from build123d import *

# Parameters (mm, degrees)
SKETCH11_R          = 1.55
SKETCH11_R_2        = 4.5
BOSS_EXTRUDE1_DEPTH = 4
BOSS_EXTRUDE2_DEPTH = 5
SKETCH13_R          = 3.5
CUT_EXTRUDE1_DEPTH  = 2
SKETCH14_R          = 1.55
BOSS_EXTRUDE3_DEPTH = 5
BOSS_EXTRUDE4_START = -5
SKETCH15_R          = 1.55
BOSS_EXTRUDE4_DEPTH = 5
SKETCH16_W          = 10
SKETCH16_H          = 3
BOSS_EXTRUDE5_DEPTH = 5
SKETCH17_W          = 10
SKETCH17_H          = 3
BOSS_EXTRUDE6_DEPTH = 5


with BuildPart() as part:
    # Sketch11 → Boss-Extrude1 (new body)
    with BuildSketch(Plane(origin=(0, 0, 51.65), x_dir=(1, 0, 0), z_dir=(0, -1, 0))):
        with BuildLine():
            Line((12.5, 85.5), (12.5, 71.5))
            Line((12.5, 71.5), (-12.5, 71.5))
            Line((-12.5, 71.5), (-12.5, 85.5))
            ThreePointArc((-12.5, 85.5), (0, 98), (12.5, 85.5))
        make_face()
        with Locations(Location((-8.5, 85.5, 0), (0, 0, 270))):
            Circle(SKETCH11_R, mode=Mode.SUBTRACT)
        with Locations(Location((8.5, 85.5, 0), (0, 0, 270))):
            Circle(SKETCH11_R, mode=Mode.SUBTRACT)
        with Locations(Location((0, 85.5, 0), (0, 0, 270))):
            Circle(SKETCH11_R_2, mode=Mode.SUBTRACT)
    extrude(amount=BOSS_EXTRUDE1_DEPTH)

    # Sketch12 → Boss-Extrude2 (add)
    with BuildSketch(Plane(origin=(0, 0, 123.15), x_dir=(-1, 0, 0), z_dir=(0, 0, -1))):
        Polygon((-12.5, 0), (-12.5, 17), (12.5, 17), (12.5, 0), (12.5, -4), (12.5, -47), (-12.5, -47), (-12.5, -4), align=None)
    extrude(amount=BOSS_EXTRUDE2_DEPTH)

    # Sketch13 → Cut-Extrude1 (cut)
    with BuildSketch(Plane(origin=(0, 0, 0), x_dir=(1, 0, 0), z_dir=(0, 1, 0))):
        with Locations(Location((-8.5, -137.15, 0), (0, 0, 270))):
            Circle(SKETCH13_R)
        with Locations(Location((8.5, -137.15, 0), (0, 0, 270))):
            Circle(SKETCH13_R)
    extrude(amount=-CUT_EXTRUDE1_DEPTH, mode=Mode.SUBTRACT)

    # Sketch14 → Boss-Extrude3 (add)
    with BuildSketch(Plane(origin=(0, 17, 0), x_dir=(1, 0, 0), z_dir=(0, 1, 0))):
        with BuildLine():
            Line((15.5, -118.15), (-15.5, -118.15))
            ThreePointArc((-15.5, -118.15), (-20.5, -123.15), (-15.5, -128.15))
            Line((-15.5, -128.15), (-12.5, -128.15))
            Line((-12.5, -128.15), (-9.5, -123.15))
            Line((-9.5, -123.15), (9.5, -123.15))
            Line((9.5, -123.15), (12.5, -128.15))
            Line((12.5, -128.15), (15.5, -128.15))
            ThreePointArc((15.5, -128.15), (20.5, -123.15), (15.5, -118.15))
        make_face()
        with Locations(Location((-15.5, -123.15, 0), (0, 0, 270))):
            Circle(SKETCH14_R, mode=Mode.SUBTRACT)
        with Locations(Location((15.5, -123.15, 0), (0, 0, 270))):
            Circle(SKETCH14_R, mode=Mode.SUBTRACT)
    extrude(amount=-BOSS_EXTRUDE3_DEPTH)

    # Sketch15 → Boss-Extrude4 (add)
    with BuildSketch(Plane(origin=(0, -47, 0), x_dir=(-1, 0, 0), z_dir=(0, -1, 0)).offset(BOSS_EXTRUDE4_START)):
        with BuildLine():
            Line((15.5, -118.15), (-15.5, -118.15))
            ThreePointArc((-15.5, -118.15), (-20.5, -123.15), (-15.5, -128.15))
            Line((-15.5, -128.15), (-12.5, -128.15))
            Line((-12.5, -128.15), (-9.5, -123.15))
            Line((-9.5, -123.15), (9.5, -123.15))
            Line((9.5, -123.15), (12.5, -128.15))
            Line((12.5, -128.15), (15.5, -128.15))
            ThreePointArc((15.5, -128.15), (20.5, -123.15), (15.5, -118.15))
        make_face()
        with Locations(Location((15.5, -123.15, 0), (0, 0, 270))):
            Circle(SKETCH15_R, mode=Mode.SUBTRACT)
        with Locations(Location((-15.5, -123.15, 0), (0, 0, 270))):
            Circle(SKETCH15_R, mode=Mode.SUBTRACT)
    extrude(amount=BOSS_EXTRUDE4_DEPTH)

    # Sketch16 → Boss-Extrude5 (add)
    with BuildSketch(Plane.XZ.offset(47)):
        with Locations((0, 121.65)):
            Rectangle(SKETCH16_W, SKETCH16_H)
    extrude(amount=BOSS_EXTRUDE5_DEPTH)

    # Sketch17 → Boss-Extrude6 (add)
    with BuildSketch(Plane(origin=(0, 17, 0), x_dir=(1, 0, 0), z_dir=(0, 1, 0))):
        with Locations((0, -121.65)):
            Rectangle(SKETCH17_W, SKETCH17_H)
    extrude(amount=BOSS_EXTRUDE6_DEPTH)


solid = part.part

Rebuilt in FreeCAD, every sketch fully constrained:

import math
import FreeCAD as App
import Part
import Sketcher

V = App.Vector
Q = App.Units.Quantity


def add_polygon(sketch, points):
    """Adds a closed chain of lines whose ends are joined by coincident constraints."""
    first, n = sketch.GeometryCount, len(points)
    for a, b in zip(points, points[1:] + points[:1]):
        sketch.addGeometry(Part.LineSegment(App.Vector(*a, 0), App.Vector(*b, 0)), False)
    for i in range(n):
        sketch.addConstraint(Sketcher.Constraint("Coincident", first + i, 2, first + (i + 1) % n, 1))

doc = App.newDocument("Part")
body = doc.addObject("PartDesign::Body", "Body")

# Sketch on XZ plane
sketch1 = doc.addObject("Sketcher::SketchObject", "Sketch")
body.addObject(sketch1)
sketch1.AttachmentSupport = (doc.XZ_Plane, [""])
sketch1.MapMode = "FlatFace"
sketch1.addGeometry(Part.LineSegment(V(12.5, 123.15, 0), V(12.5, 137.15, 0)), False)
sketch1.addGeometry(Part.ArcOfCircle(Part.Circle(V(0, 137.15, 0), V(0, 0, 1), 12.5), math.radians(0), math.radians(180)), False)
sketch1.addGeometry(Part.LineSegment(V(-12.5, 137.15, 0), V(-12.5, 123.15, 0)), False)
sketch1.addGeometry(Part.LineSegment(V(-12.5, 123.15, 0), V(12.5, 123.15, 0)), False)
sketch1.addGeometry(Part.Circle(V(8.5, 137.15, 0), V(0, 0, 1), 1.55), False)
sketch1.addGeometry(Part.Circle(V(0, 137.15, 0), V(0, 0, 1), 4.5), False)
sketch1.addGeometry(Part.Circle(V(-8.5, 137.15, 0), V(0, 0, 1), 1.55), False)
sketch1.addConstraint(Sketcher.Constraint("Tangent", 0, 2, 1, 1))
sketch1.addConstraint(Sketcher.Constraint("Tangent", 1, 2, 2, 1))
sketch1.addConstraint(Sketcher.Constraint("Coincident", 2, 2, 3, 1))
sketch1.addConstraint(Sketcher.Constraint("Coincident", 3, 2, 0, 1))
sketch1.addConstraint(Sketcher.Constraint("Vertical", 0))
sketch1.addConstraint(Sketcher.Constraint("Vertical", 2))
sketch1.addConstraint(Sketcher.Constraint("Horizontal", 3))
sketch1.addConstraint(Sketcher.Constraint("Coincident", 5, 3, 1, 3))
sketch1.addConstraint(Sketcher.Constraint("Equal", 4, 6))
sketch1.addConstraint(Sketcher.Constraint("Symmetric", 4, 3, 6, 3, -2))
sketch1.addConstraint(Sketcher.Constraint("PointOnObject", 1, 3, -2))
sketch1.addConstraint(Sketcher.Constraint("Horizontal", 1, 3, 4, 3))
sketch1.addConstraint(Sketcher.Constraint("Diameter", 5, Q("9 mm")))
sketch1.addConstraint(Sketcher.Constraint("Diameter", 4, Q("3.1 mm")))
sketch1.addConstraint(Sketcher.Constraint("Radius", 1, Q("12.5 mm")))
sketch1.addConstraint(Sketcher.Constraint("DistanceY", 0, 1, 0, 2, Q("14 mm")))
sketch1.addConstraint(Sketcher.Constraint("DistanceX", 6, 3, 4, 3, Q("17 mm")))
sketch1.addConstraint(Sketcher.Constraint("DistanceY", -1, 1, 1, 3, Q("137.15 mm")))
pad1 = doc.addObject("PartDesign::Pad", "Pad")
body.addObject(pad1)
pad1.Profile = sketch1
pad1.Length = 4

# Sketch on XY plane
sketch2 = doc.addObject("Sketcher::SketchObject", "Sketch001")
body.addObject(sketch2)
sketch2.AttachmentSupport = (doc.XY_Plane, [""])
sketch2.MapMode = "FlatFace"
sketch2.AttachmentOffset = App.Placement(V(0, 0, 123.15), App.Rotation())
add_polygon(sketch2, [(12.5, 17), (12.5, -47), (-12.5, -47), (-12.5, 17)])  # lines 0-3
sketch2.addConstraint(Sketcher.Constraint("Vertical", 0))
sketch2.addConstraint(Sketcher.Constraint("Horizontal", 1))
sketch2.addConstraint(Sketcher.Constraint("Vertical", 2))
sketch2.addConstraint(Sketcher.Constraint("Horizontal", 3))
sketch2.addConstraint(Sketcher.Constraint("DistanceX", 1, 2, 1, 1, Q("25 mm")))
sketch2.addConstraint(Sketcher.Constraint("DistanceY", 0, 2, 0, 1, Q("64 mm")))
sketch2.addConstraint(Sketcher.Constraint("DistanceY", 0, 2, -1, 1, Q("47 mm")))
sketch2.addConstraint(Sketcher.Constraint("DistanceX", -1, 1, 0, 2, Q("12.5 mm")))
pad2 = doc.addObject("PartDesign::Pad", "Pad001")
body.addObject(pad2)
pad2.Profile = sketch2
pad2.Length = 5
pad2.Reversed = True

# Sketch on XZ plane
sketch3 = doc.addObject("Sketcher::SketchObject", "Sketch002")
body.addObject(sketch3)
sketch3.AttachmentSupport = (doc.XZ_Plane, [""])
sketch3.MapMode = "FlatFace"
sketch3.addGeometry(Part.Circle(V(-8.5, 137.15, 0), V(0, 0, 1), 3.5), False)
sketch3.addGeometry(Part.Circle(V(8.5, 137.15, 0), V(0, 0, 1), 3.5), False)
sketch3.addConstraint(Sketcher.Constraint("Equal", 0, 1))
sketch3.addConstraint(Sketcher.Constraint("Symmetric", 0, 3, 1, 3, -2))
sketch3.addConstraint(Sketcher.Constraint("Diameter", 0, Q("7 mm")))
sketch3.addConstraint(Sketcher.Constraint("DistanceX", 0, 3, 1, 3, Q("17 mm")))
sketch3.addConstraint(Sketcher.Constraint("DistanceY", -1, 1, 0, 3, Q("137.15 mm")))
pocket1 = doc.addObject("PartDesign::Pocket", "Pocket")
body.addObject(pocket1)
pocket1.Profile = sketch3
pocket1.Length = 2
pocket1.Reversed = True

# Sketch on XZ plane
sketch4 = doc.addObject("Sketcher::SketchObject", "Sketch003")
body.addObject(sketch4)
sketch4.AttachmentSupport = (doc.XZ_Plane, [""])
sketch4.MapMode = "FlatFace"
sketch4.AttachmentOffset = App.Placement(V(0, 0, -17), App.Rotation())
sketch4.addGeometry(Part.LineSegment(V(15.5, 118.15, 0), V(-15.5, 118.15, 0)), False)
sketch4.addGeometry(Part.ArcOfCircle(Part.Circle(V(-15.5, 123.15, 0), V(0, 0, 1), 5), math.radians(90), math.radians(270)), False)
sketch4.addGeometry(Part.LineSegment(V(-15.5, 128.15, 0), V(-12.5, 128.15, 0)), False)
sketch4.addGeometry(Part.LineSegment(V(-12.5, 128.15, 0), V(-9.5, 123.15, 0)), False)
sketch4.addGeometry(Part.LineSegment(V(-9.5, 123.15, 0), V(9.5, 123.15, 0)), False)
sketch4.addGeometry(Part.LineSegment(V(9.5, 123.15, 0), V(12.5, 128.15, 0)), False)
sketch4.addGeometry(Part.LineSegment(V(12.5, 128.15, 0), V(15.5, 128.15, 0)), False)
sketch4.addGeometry(Part.ArcOfCircle(Part.Circle(V(15.5, 123.15, 0), V(0, 0, 1), 5), math.radians(-90), math.radians(90)), False)
sketch4.addGeometry(Part.Circle(V(-15.5, 123.15, 0), V(0, 0, 1), 1.55), False)
sketch4.addGeometry(Part.Circle(V(15.5, 123.15, 0), V(0, 0, 1), 1.55), False)
sketch4.addConstraint(Sketcher.Constraint("Tangent", 0, 2, 1, 2))
sketch4.addConstraint(Sketcher.Constraint("Tangent", 1, 1, 2, 1))
sketch4.addConstraint(Sketcher.Constraint("Coincident", 2, 2, 3, 1))
sketch4.addConstraint(Sketcher.Constraint("Coincident", 3, 2, 4, 1))
sketch4.addConstraint(Sketcher.Constraint("Coincident", 4, 2, 5, 1))
sketch4.addConstraint(Sketcher.Constraint("Coincident", 5, 2, 6, 1))
sketch4.addConstraint(Sketcher.Constraint("Tangent", 6, 2, 7, 2))
sketch4.addConstraint(Sketcher.Constraint("Tangent", 7, 1, 0, 1))
sketch4.addConstraint(Sketcher.Constraint("Horizontal", 0))
sketch4.addConstraint(Sketcher.Constraint("Horizontal", 2))
sketch4.addConstraint(Sketcher.Constraint("Horizontal", 4))
sketch4.addConstraint(Sketcher.Constraint("Horizontal", 6))
sketch4.addConstraint(Sketcher.Constraint("Coincident", 8, 3, 1, 3))
sketch4.addConstraint(Sketcher.Constraint("Coincident", 9, 3, 7, 3))
sketch4.addConstraint(Sketcher.Constraint("Equal", 1, 7))
sketch4.addConstraint(Sketcher.Constraint("Equal", 8, 9))
sketch4.addConstraint(Sketcher.Constraint("Horizontal", 9, 3, 3, 2))
sketch4.addConstraint(Sketcher.Constraint("Equal", 2, 6))
sketch4.addConstraint(Sketcher.Constraint("Equal", 3, 5))
sketch4.addConstraint(Sketcher.Constraint("Radius", 1, Q("5 mm")))
sketch4.addConstraint(Sketcher.Constraint("Diameter", 8, Q("3.1 mm")))
sketch4.addConstraint(Sketcher.Constraint("DistanceX", 0, 2, 0, 1, Q("31 mm")))
sketch4.addConstraint(Sketcher.Constraint("DistanceX", 2, 1, 2, 2, Q("3 mm")))
sketch4.addConstraint(Sketcher.Constraint("DistanceX", 4, 1, 4, 2, Q("19 mm")))
sketch4.addConstraint(Sketcher.Constraint("DistanceX", 1, 3, -1, 1, Q("15.5 mm")))
sketch4.addConstraint(Sketcher.Constraint("DistanceY", -1, 1, 1, 3, Q("123.15 mm")))
pad3 = doc.addObject("PartDesign::Pad", "Pad002")
body.addObject(pad3)
pad3.Profile = sketch4
pad3.Length = 5

# Sketch on XZ plane
sketch5 = doc.addObject("Sketcher::SketchObject", "Sketch004")
body.addObject(sketch5)
sketch5.AttachmentSupport = (doc.XZ_Plane, [""])
sketch5.MapMode = "FlatFace"
sketch5.AttachmentOffset = App.Placement(V(0, 0, 42), App.Rotation())
sketch5.addGeometry(Part.LineSegment(V(-15.5, 118.15, 0), V(15.5, 118.15, 0)), False)
sketch5.addGeometry(Part.ArcOfCircle(Part.Circle(V(15.5, 123.15, 0), V(0, 0, 1), 5), math.radians(-90), math.radians(90)), False)
sketch5.addGeometry(Part.LineSegment(V(15.5, 128.15, 0), V(12.5, 128.15, 0)), False)
sketch5.addGeometry(Part.LineSegment(V(12.5, 128.15, 0), V(9.5, 123.15, 0)), False)
sketch5.addGeometry(Part.LineSegment(V(9.5, 123.15, 0), V(-9.5, 123.15, 0)), False)
sketch5.addGeometry(Part.LineSegment(V(-9.5, 123.15, 0), V(-12.5, 128.15, 0)), False)
sketch5.addGeometry(Part.LineSegment(V(-12.5, 128.15, 0), V(-15.5, 128.15, 0)), False)
sketch5.addGeometry(Part.ArcOfCircle(Part.Circle(V(-15.5, 123.15, 0), V(0, 0, 1), 5), math.radians(90), math.radians(270)), False)
sketch5.addGeometry(Part.Circle(V(15.5, 123.15, 0), V(0, 0, 1), 1.55), False)
sketch5.addGeometry(Part.Circle(V(-15.5, 123.15, 0), V(0, 0, 1), 1.55), False)
sketch5.addConstraint(Sketcher.Constraint("Tangent", 0, 2, 1, 1))
sketch5.addConstraint(Sketcher.Constraint("Tangent", 1, 2, 2, 1))
sketch5.addConstraint(Sketcher.Constraint("Coincident", 2, 2, 3, 1))
sketch5.addConstraint(Sketcher.Constraint("Coincident", 3, 2, 4, 1))
sketch5.addConstraint(Sketcher.Constraint("Coincident", 4, 2, 5, 1))
sketch5.addConstraint(Sketcher.Constraint("Coincident", 5, 2, 6, 1))
sketch5.addConstraint(Sketcher.Constraint("Tangent", 6, 2, 7, 1))
sketch5.addConstraint(Sketcher.Constraint("Tangent", 7, 2, 0, 1))
sketch5.addConstraint(Sketcher.Constraint("Horizontal", 0))
sketch5.addConstraint(Sketcher.Constraint("Horizontal", 2))
sketch5.addConstraint(Sketcher.Constraint("Horizontal", 4))
sketch5.addConstraint(Sketcher.Constraint("Horizontal", 6))
sketch5.addConstraint(Sketcher.Constraint("Coincident", 8, 3, 1, 3))
sketch5.addConstraint(Sketcher.Constraint("Coincident", 9, 3, 7, 3))
sketch5.addConstraint(Sketcher.Constraint("Equal", 1, 7))
sketch5.addConstraint(Sketcher.Constraint("Equal", 8, 9))
sketch5.addConstraint(Sketcher.Constraint("Horizontal", 9, 3, 3, 2))
sketch5.addConstraint(Sketcher.Constraint("Equal", 2, 6))
sketch5.addConstraint(Sketcher.Constraint("Equal", 3, 5))
sketch5.addConstraint(Sketcher.Constraint("Radius", 1, Q("5 mm")))
sketch5.addConstraint(Sketcher.Constraint("Diameter", 8, Q("3.1 mm")))
sketch5.addConstraint(Sketcher.Constraint("DistanceX", 0, 1, 0, 2, Q("31 mm")))
sketch5.addConstraint(Sketcher.Constraint("DistanceX", 2, 2, 2, 1, Q("3 mm")))
sketch5.addConstraint(Sketcher.Constraint("DistanceX", 4, 2, 4, 1, Q("19 mm")))
sketch5.addConstraint(Sketcher.Constraint("DistanceX", -1, 1, 1, 3, Q("15.5 mm")))
sketch5.addConstraint(Sketcher.Constraint("DistanceY", -1, 1, 1, 3, Q("123.15 mm")))
pad4 = doc.addObject("PartDesign::Pad", "Pad003")
body.addObject(pad4)
pad4.Profile = sketch5
pad4.Length = 5

# Sketch on XZ plane
sketch6 = doc.addObject("Sketcher::SketchObject", "Sketch005")
body.addObject(sketch6)
sketch6.AttachmentSupport = (doc.XZ_Plane, [""])
sketch6.MapMode = "FlatFace"
sketch6.AttachmentOffset = App.Placement(V(0, 0, 47), App.Rotation())
add_polygon(sketch6, [(-5, 123.15), (-5, 120.15), (5, 120.15), (5, 123.15)])  # lines 0-3
sketch6.addConstraint(Sketcher.Constraint("Vertical", 0))
sketch6.addConstraint(Sketcher.Constraint("Horizontal", 1))
sketch6.addConstraint(Sketcher.Constraint("Vertical", 2))
sketch6.addConstraint(Sketcher.Constraint("Horizontal", 3))
sketch6.addConstraint(Sketcher.Constraint("DistanceX", 1, 1, 1, 2, Q("10 mm")))
sketch6.addConstraint(Sketcher.Constraint("DistanceY", 0, 2, 0, 1, Q("3 mm")))
sketch6.addConstraint(Sketcher.Constraint("DistanceX", 0, 2, -1, 1, Q("5 mm")))
sketch6.addConstraint(Sketcher.Constraint("DistanceY", -1, 1, 0, 2, Q("120.15 mm")))
pad5 = doc.addObject("PartDesign::Pad", "Pad004")
body.addObject(pad5)
pad5.Profile = sketch6
pad5.Length = 5

# Sketch on XZ plane
sketch7 = doc.addObject("Sketcher::SketchObject", "Sketch006")
body.addObject(sketch7)
sketch7.AttachmentSupport = (doc.XZ_Plane, [""])
sketch7.MapMode = "FlatFace"
sketch7.AttachmentOffset = App.Placement(V(0, 0, -17), App.Rotation())
add_polygon(sketch7, [(-5, 120.15), (-5, 123.15), (5, 123.15), (5, 120.15)])  # lines 0-3
sketch7.addConstraint(Sketcher.Constraint("Vertical", 0))
sketch7.addConstraint(Sketcher.Constraint("Horizontal", 1))
sketch7.addConstraint(Sketcher.Constraint("Vertical", 2))
sketch7.addConstraint(Sketcher.Constraint("Horizontal", 3))
sketch7.addConstraint(Sketcher.Constraint("DistanceX", 1, 1, 1, 2, Q("10 mm")))
sketch7.addConstraint(Sketcher.Constraint("DistanceY", 0, 1, 0, 2, Q("3 mm")))
sketch7.addConstraint(Sketcher.Constraint("DistanceX", 0, 2, -1, 1, Q("5 mm")))
sketch7.addConstraint(Sketcher.Constraint("DistanceY", -1, 1, 0, 2, Q("123.15 mm")))
pad6 = doc.addObject("PartDesign::Pad", "Pad005")
body.addObject(pad6)
pad6.Profile = sketch7
pad6.Length = 5
pad6.Reversed = True

doc.recompute()
